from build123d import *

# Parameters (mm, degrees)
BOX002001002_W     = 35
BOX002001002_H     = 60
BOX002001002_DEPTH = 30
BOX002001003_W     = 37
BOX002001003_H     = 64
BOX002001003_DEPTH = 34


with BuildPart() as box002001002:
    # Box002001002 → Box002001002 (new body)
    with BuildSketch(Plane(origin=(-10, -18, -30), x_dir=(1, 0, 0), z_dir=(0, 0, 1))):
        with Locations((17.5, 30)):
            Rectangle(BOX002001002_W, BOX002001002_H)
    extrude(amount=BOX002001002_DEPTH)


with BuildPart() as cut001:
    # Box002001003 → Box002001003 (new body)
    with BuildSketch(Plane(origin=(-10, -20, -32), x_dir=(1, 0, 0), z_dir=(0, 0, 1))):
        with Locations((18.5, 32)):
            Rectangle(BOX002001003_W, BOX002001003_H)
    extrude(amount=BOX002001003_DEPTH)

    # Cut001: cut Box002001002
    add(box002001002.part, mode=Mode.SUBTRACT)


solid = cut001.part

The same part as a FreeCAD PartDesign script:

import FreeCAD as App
import Part
import Sketcher

V = App.Vector
Q = App.Units.Quantity


def add_polygon(sketch, points):
    """Adds a closed chain of lines whose ends are joined by coincident constraints."""
    first, n = sketch.GeometryCount, len(points)
    for a, b in zip(points, points[1:] + points[:1]):
        sketch.addGeometry(Part.LineSegment(App.Vector(*a, 0), App.Vector(*b, 0)), False)
    for i in range(n):
        sketch.addConstraint(Sketcher.Constraint("Coincident", first + i, 2, first + (i + 1) % n, 1))

doc = App.newDocument("Part")
body = doc.addObject("PartDesign::Body", "Body")

# Sketch on XY plane
sketch1 = body.newObject("Sketcher::SketchObject", "Sketch")
sketch1.AttachmentSupport = (doc.getObject("XY_Plane"), [""])
sketch1.MapMode = "FlatFace"
sketch1.AttachmentOffset = App.Placement(V(0, 0, -30), App.Rotation())
add_polygon(sketch1, [(-10, 42), (-10, -18), (25, -18), (25, 42)])  # lines 0-3
sketch1.addConstraint([
    Sketcher.Constraint("Vertical", 0),
    Sketcher.Constraint("Horizontal", 1),
    Sketcher.Constraint("Vertical", 2),
    Sketcher.Constraint("Horizontal", 3),
    Sketcher.Constraint("DistanceX", 1, 1, 1, 2, Q("35 mm")),
    Sketcher.Constraint("DistanceY", 0, 2, 0, 1, Q("60 mm")),
    Sketcher.Constraint("DistanceX", 0, 2, -1, 1, Q("10 mm")),
    Sketcher.Constraint("DistanceY", 0, 2, -1, 1, Q("18 mm")),
])
pad1 = body.newObject("PartDesign::Pad", "Pad")
pad1.Profile = sketch1
pad1.Length = 30
body2 = doc.addObject("PartDesign::Body", "Body001")

# Sketch on XY plane
sketch2 = body2.newObject("Sketcher::SketchObject", "Sketch001")
sketch2.AttachmentSupport = (doc.getObject("XY_Plane001"), [""])
sketch2.MapMode = "FlatFace"
sketch2.AttachmentOffset = App.Placement(V(0, 0, -32), App.Rotation())
add_polygon(sketch2, [(-10, 44), (-10, -20), (27, -20), (27, 44)])  # lines 0-3
sketch2.addConstraint([
    Sketcher.Constraint("Vertical", 0),
    Sketcher.Constraint("Horizontal", 1),
    Sketcher.Constraint("Vertical", 2),
    Sketcher.Constraint("Horizontal", 3),
    Sketcher.Constraint("DistanceX", 1, 1, 1, 2, Q("37 mm")),
    Sketcher.Constraint("DistanceY", 0, 2, 0, 1, Q("64 mm")),
    Sketcher.Constraint("DistanceX", 0, 2, -1, 1, Q("10 mm")),
    Sketcher.Constraint("DistanceY", 0, 2, -1, 1, Q("20 mm")),
])
pad2 = body2.newObject("PartDesign::Pad", "Pad001")
pad2.Profile = sketch2
pad2.Length = 34
doc.recompute()

boolean = body2.newObject("PartDesign::Boolean", "Boolean")
boolean.Type = "Cut"
boolean.addObjects([body])

doc.recompute()
